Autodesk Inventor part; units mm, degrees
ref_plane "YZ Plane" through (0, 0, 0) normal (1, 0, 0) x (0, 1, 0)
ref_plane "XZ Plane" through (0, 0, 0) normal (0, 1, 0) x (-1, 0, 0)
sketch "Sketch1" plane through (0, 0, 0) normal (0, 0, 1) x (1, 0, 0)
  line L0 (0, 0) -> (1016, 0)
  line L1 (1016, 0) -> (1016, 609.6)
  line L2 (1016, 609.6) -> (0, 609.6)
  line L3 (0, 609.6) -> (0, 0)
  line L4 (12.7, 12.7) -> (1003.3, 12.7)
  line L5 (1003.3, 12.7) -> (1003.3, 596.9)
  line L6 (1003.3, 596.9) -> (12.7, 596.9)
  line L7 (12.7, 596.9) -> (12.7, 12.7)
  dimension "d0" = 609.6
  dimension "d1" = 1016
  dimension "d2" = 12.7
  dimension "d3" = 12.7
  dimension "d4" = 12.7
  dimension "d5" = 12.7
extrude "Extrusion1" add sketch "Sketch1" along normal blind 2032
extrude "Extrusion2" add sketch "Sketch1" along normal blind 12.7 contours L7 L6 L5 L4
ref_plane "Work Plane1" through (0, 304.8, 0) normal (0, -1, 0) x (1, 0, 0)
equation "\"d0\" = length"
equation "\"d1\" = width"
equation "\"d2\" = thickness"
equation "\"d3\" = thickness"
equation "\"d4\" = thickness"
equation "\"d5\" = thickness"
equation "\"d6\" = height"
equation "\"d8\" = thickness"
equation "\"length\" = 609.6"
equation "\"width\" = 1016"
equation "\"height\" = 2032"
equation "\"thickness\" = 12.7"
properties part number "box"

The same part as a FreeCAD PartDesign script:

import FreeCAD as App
import Part
import Sketcher

V = App.Vector
Q = App.Units.Quantity

doc = App.newDocument("Part")
body = doc.addObject("PartDesign::Body", "Body")

# Sketch on XY plane
sketch1 = body.newObject("Sketcher::SketchObject", "Sketch")
sketch1.AttachmentSupport = (doc.getObject("XY_Plane"), [""])
sketch1.MapMode = "FlatFace"
sketch1.addGeometry([
    Part.LineSegment(V(0, 610, 0), V(0, 0, 0)),  # 0
    Part.LineSegment(V(0, 0, 0), V(1016, 0, 0)),  # 1
    Part.LineSegment(V(1016, 0, 0), V(1016, 610, 0)),  # 2
    Part.LineSegment(V(1016, 610, 0), V(0, 610, 0)),  # 3
    Part.LineSegment(V(1003, 13, 0), V(13, 13, 0)),  # 4
    Part.LineSegment(V(13, 13, 0), V(13, 597, 0)),  # 5
    Part.LineSegment(V(13, 597, 0), V(1003, 597, 0)),  # 6
    Part.LineSegment(V(1003, 597, 0), V(1003, 13, 0)),  # 7
], False)
sketch1.addConstraint([
    Sketcher.Constraint("Coincident", 0, 2, 1, 1),
    Sketcher.Constraint("Coincident", 1, 2, 2, 1),
    Sketcher.Constraint("Coincident", 2, 2, 3, 1),
    Sketcher.Constraint("Coincident", 3, 2, 0, 1),
    Sketcher.Constraint("Coincident", 4, 2, 5, 1),
    Sketcher.Constraint("Coincident", 5, 2, 6, 1),
    Sketcher.Constraint("Coincident", 6, 2, 7, 1),
    Sketcher.Constraint("Coincident", 7, 2, 4, 1),
    Sketcher.Constraint("Vertical", 0),
    Sketcher.Constraint("Horizontal", 1),
    Sketcher.Constraint("Vertical", 2),
    Sketcher.Constraint("Horizontal", 3),
    Sketcher.Constraint("Horizontal", 4),
    Sketcher.Constraint("Vertical", 5),
    Sketcher.Constraint("Horizontal", 6),
    Sketcher.Constraint("Vertical", 7),
    Sketcher.Constraint("Coincident", 0, 2, -1, 1),
    Sketcher.Constraint("DistanceX", 1, 1, 1, 2, Q("40 in")),
    Sketcher.Constraint("DistanceY", 0, 2, 0, 1, Q("24 in")),
    Sketcher.Constraint("DistanceX", -1, 1, 4, 2, Q("0.5 in")),
    Sketcher.Constraint("DistanceY", -1, 1, 4, 2, Q("0.5 in")),
    Sketcher.Constraint("DistanceY", 5, 2, 3, 2, Q("0.5 in")),
    Sketcher.Constraint("DistanceX", 6, 2, 2, 2, Q("0.5 in")),
])
pad1 = body.newObject("PartDesign::Pad", "Pad")
pad1.Profile = sketch1
pad1.Length = Q("80 in")

# Sketch on XY plane
sketch2 = body.newObject("Sketcher::SketchObject", "Sketch001")
sketch2.AttachmentSupport = (doc.getObject("XY_Plane"), [""])
sketch2.MapMode = "FlatFace"
sketch2.addGeometry([
    Part.LineSegment(V(13, 597, 0), V(13, 13, 0)),
    Part.LineSegment(V(13, 13, 0), V(1003, 13, 0)),
    Part.LineSegment(V(1003, 13, 0), V(1003, 597, 0)),
    Part.LineSegment(V(1003, 597, 0), V(13, 597, 0)),
], False)
sketch2.addConstraint([
    Sketcher.Constraint("Coincident", 0, 2, 1, 1),
    Sketcher.Constraint("Coincident", 1, 2, 2, 1),
    Sketcher.Constraint("Coincident", 2, 2, 3, 1),
    Sketcher.Constraint("Coincident", 3, 2, 0, 1),
    Sketcher.Constraint("Vertical", 0),
    Sketcher.Constraint("Horizontal", 1),
    Sketcher.Constraint("Vertical", 2),
    Sketcher.Constraint("Horizontal", 3),
    Sketcher.Constraint("DistanceX", -1, 1, 0, 2, Q("0.5 in")),
    Sketcher.Constraint("DistanceY", -1, 1, 0, 2, Q("0.5 in")),
    Sketcher.Constraint("DistanceX", 1, 1, 1, 2, Q("39 in")),
    Sketcher.Constraint("DistanceY", 0, 2, 0, 1, Q("23 in")),
])
pad2 = body.newObject("PartDesign::Pad", "Pad001")
pad2.Profile = sketch2
pad2.Length = Q("0.5 in")

doc.recompute()
